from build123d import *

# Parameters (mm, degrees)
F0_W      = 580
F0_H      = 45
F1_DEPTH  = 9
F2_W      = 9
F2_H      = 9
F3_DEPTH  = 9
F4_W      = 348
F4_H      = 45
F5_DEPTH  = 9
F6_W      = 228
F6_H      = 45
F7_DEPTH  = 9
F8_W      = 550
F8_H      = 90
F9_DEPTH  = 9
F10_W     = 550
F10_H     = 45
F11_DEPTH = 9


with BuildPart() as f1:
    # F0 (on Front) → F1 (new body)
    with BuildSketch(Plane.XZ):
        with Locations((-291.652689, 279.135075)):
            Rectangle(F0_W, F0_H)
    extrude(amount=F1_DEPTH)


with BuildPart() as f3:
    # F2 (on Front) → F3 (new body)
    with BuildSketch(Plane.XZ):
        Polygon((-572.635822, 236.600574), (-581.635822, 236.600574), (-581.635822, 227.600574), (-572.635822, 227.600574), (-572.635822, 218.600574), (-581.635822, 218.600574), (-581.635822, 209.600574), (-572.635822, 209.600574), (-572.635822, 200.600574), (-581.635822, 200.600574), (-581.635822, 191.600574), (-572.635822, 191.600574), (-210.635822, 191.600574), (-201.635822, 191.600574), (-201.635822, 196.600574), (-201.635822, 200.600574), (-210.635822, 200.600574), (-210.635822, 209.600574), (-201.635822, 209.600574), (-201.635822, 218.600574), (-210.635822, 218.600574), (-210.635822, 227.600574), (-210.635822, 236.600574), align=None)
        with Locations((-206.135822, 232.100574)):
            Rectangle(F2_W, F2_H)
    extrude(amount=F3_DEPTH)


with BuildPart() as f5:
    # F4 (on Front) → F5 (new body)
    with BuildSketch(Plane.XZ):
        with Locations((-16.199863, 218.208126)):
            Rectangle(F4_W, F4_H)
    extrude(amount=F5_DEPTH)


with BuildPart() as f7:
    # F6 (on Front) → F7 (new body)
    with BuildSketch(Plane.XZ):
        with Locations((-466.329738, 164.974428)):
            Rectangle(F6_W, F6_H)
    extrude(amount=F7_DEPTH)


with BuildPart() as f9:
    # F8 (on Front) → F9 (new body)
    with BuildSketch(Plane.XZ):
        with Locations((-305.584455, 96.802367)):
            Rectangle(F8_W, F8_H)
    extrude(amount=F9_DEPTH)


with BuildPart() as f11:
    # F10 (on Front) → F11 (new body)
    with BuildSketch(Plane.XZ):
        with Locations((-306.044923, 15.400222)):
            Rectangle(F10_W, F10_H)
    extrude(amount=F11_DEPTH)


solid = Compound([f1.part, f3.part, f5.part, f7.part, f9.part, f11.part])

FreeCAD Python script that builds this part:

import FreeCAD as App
import Part
import Sketcher
from FreeCAD import Vector
Q = App.Units.Quantity

doc = App.newDocument("Part")
body = doc.addObject("PartDesign::Body", "Body")

# Sketch on XZ plane
sketch1 = doc.addObject("Sketcher::SketchObject", "Sketch")
body.addObject(sketch1)
sketch1.AttachmentSupport = (doc.XZ_Plane, [""])
sketch1.MapMode = "FlatFace"
sketch1.addGeometry([
    Part.LineSegment(Vector(-582, 302, 0), Vector(-582, 257, 0)),
    Part.LineSegment(Vector(-582, 257, 0), Vector(-2, 257, 0)),
    Part.LineSegment(Vector(-2, 257, 0), Vector(-2, 302, 0)),
    Part.LineSegment(Vector(-2, 302, 0), Vector(-582, 302, 0)),
], False)
sketch1.addConstraint([
    Sketcher.Constraint("Coincident", 0, 2, 1, 1),
    Sketcher.Constraint("Coincident", 1, 2, 2, 1),
    Sketcher.Constraint("Coincident", 2, 2, 3, 1),
    Sketcher.Constraint("Coincident", 3, 2, 0, 1),
    Sketcher.Constraint("Vertical", 0),
    Sketcher.Constraint("Horizontal", 1),
    Sketcher.Constraint("Vertical", 2),
    Sketcher.Constraint("Horizontal", 3),
    Sketcher.Constraint("DistanceX", 1, 1, 1, 2, Q("580 mm")),
    Sketcher.Constraint("DistanceY", 0, 2, 0, 1, Q("45 mm")),
    Sketcher.Constraint("DistanceX", 0, 2, -1, 1, Q("581.652689 mm")),
    Sketcher.Constraint("DistanceY", -1, 1, 0, 2, Q("256.635075 mm")),
])
pad1 = doc.addObject("PartDesign::Pad", "Pad")
body.addObject(pad1)
pad1.Profile = sketch1
pad1.Length = 9
body2 = doc.addObject("PartDesign::Body", "Body001")

# Sketch on XZ plane
sketch2 = doc.addObject("Sketcher::SketchObject", "Sketch001")
body2.addObject(sketch2)
sketch2.AttachmentSupport = (doc.getObject("XZ_Plane001"), [""])
sketch2.MapMode = "FlatFace"
sketch2.addGeometry([
    Part.LineSegment(Vector(-582, 237, 0), Vector(-582, 228, 0)),  # 0
    Part.LineSegment(Vector(-582, 228, 0), Vector(-573, 228, 0)),  # 1
    Part.LineSegment(Vector(-573, 228, 0), Vector(-573, 219, 0)),  # 2
    Part.LineSegment(Vector(-573, 219, 0), Vector(-582, 219, 0)),  # 3
    Part.LineSegment(Vector(-582, 219, 0), Vector(-582, 210, 0)),  # 4
    Part.LineSegment(Vector(-582, 210, 0), Vector(-573, 210, 0)),  # 5
    Part.LineSegment(Vector(-573, 210, 0), Vector(-573, 201, 0)),  # 6
    Part.LineSegment(Vector(-573, 201, 0), Vector(-582, 201, 0)),  # 7
    Part.LineSegment(Vector(-582, 201, 0), Vector(-582, 192, 0)),  # 8
    Part.LineSegment(Vector(-582, 192, 0), Vector(-202, 192, 0)),  # 9
    Part.LineSegment(Vector(-202, 192, 0), Vector(-202, 201, 0)),  # 10
    Part.LineSegment(Vector(-202, 201, 0), Vector(-211, 201, 0)),  # 11
    Part.LineSegment(Vector(-211, 201, 0), Vector(-211, 210, 0)),  # 12
    Part.LineSegment(Vector(-211, 210, 0), Vector(-202, 210, 0)),  # 13
    Part.LineSegment(Vector(-202, 210, 0), Vector(-202, 219, 0)),  # 14
    Part.LineSegment(Vector(-202, 219, 0), Vector(-211, 219, 0)),  # 15
    Part.LineSegment(Vector(-211, 219, 0), Vector(-211, 228, 0)),  # 16
    Part.LineSegment(Vector(-211, 228, 0), Vector(-202, 228, 0)),  # 17
    Part.LineSegment(Vector(-202, 228, 0), Vector(-202, 237, 0)),  # 18
    Part.LineSegment(Vector(-202, 237, 0), Vector(-582, 237, 0)),  # 19
], False)
sketch2.addConstraint([
    Sketcher.Constraint("Coincident", 0, 2, 1, 1),
    Sketcher.Constraint("Coincident", 1, 2, 2, 1),
    Sketcher.Constraint("Coincident", 2, 2, 3, 1),
    Sketcher.Constraint("Coincident", 3, 2, 4, 1),
    Sketcher.Constraint("Coincident", 4, 2, 5, 1),
    Sketcher.Constraint("Coincident", 5, 2, 6, 1),
    Sketcher.Constraint("Coincident", 6, 2, 7, 1),
    Sketcher.Constraint("Coincident", 7, 2, 8, 1),
    Sketcher.Constraint("Coincident", 8, 2, 9, 1),
    Sketcher.Constraint("Coincident", 9, 2, 10, 1),
    Sketcher.Constraint("Coincident", 10, 2, 11, 1),
    Sketcher.Constraint("Coincident", 11, 2, 12, 1),
    Sketcher.Constraint("Coincident", 12, 2, 13, 1),
    Sketcher.Constraint("Coincident", 13, 2, 14, 1),
    Sketcher.Constraint("Coincident", 14, 2, 15, 1),
    Sketcher.Constraint("Coincident", 15, 2, 16, 1),
    Sketcher.Constraint("Coincident", 16, 2, 17, 1),
    Sketcher.Constraint("Coincident", 17, 2, 18, 1),
    Sketcher.Constraint("Coincident", 18, 2, 19, 1),
    Sketcher.Constraint("Coincident", 19, 2, 0, 1),
    Sketcher.Constraint("Vertical", 0),
    Sketcher.Constraint("Horizontal", 1),
    Sketcher.Constraint("Vertical", 2),
    Sketcher.Constraint("Horizontal", 3),
    Sketcher.Constraint("Vertical", 4),
    Sketcher.Constraint("Horizontal", 5),
    Sketcher.Constraint("Vertical", 6),
    Sketcher.Constraint("Horizontal", 7),
    Sketcher.Constraint("Vertical", 8),
    Sketcher.Constraint("Horizontal", 9),
    Sketcher.Constraint("Vertical", 10),
    Sketcher.Constraint("Horizontal", 11),
    Sketcher.Constraint("Vertical", 12),
    Sketcher.Constraint("Horizontal", 13),
    Sketcher.Constraint("Vertical", 14),
    Sketcher.Constraint("Horizontal", 15),
    Sketcher.Constraint("Vertical", 16),
    Sketcher.Constraint("Horizontal", 17),
    Sketcher.Constraint("Vertical", 18),
    Sketcher.Constraint("Horizontal", 19),
    Sketcher.Constraint("Horizontal", 7, 2, 10, 2),
    Sketcher.Constraint("Horizontal", 5, 2, 12, 2),
    Sketcher.Constraint("Horizontal", 3, 2, 14, 2),
    Sketcher.Constraint("Horizontal", 1, 2, 16, 2),
    Sketcher.Constraint("Vertical", 0, 2, 3, 2),
    Sketcher.Constraint("Vertical", 2, 2, 5, 2),
    Sketcher.Constraint("Vertical", 4, 2, 7, 2),
    Sketcher.Constraint("Vertical", 10, 2, 13, 2),
    Sketcher.Constraint("Vertical", 12, 2, 15, 2),
    Sketcher.Constraint("Vertical", 14, 2, 17, 2),
    Sketcher.Constraint("Equal", 7, 11),
    Sketcher.Constraint("Equal", 17, 0),
    Sketcher.Constraint("Equal", 0, 2),
    Sketcher.Constraint("Equal", 2, 4),
    Sketcher.Constraint("Equal", 4, 6),
    Sketcher.Constraint("Equal", 6, 8),
    Sketcher.Constraint("DistanceX", 1, 1, 1, 2, Q("9 mm")),
    Sketcher.Constraint("DistanceX", 9, 1, 9, 2, Q("380 mm")),
    Sketcher.Constraint("DistanceX", 0, 2, -1, 1, Q("581.635822 mm")),
    Sketcher.Constraint("DistanceY", -1, 1, 0, 2, Q("227.600574 mm")),
])
pad2 = doc.addObject("PartDesign::Pad", "Pad001")
body2.addObject(pad2)
pad2.Profile = sketch2
pad2.Length = 9
body3 = doc.addObject("PartDesign::Body", "Body002")

# Sketch on XZ plane
sketch3 = doc.addObject("Sketcher::SketchObject", "Sketch002")
body3.addObject(sketch3)
sketch3.AttachmentSupport = (doc.getObject("XZ_Plane002"), [""])
sketch3.MapMode = "FlatFace"
sketch3.addGeometry([
    Part.LineSegment(Vector(-190, 241, 0), Vector(-190, 196, 0)),
    Part.LineSegment(Vector(-190, 196, 0), Vector(158, 196, 0)),
    Part.LineSegment(Vector(158, 196, 0), Vector(158, 241, 0)),
    Part.LineSegment(Vector(158, 241, 0), Vector(-190, 241, 0)),
], False)
sketch3.addConstraint([
    Sketcher.Constraint("Coincident", 0, 2, 1, 1),
    Sketcher.Constraint("Coincident", 1, 2, 2, 1),
    Sketcher.Constraint("Coincident", 2, 2, 3, 1),
    Sketcher.Constraint("Coincident", 3, 2, 0, 1),
    Sketcher.Constraint("Vertical", 0),
    Sketcher.Constraint("Horizontal", 1),
    Sketcher.Constraint("Vertical", 2),
    Sketcher.Constraint("Horizontal", 3),
    Sketcher.Constraint("DistanceX", 1, 1, 1, 2, Q("348 mm")),
    Sketcher.Constraint("DistanceY", 0, 2, 0, 1, Q("45 mm")),
    Sketcher.Constraint("DistanceX", 0, 2, -1, 1, Q("190.199863 mm")),
    Sketcher.Constraint("DistanceY", -1, 1, 0, 2, Q("195.708126 mm")),
])
pad3 = doc.addObject("PartDesign::Pad", "Pad002")
body3.addObject(pad3)
pad3.Profile = sketch3
pad3.Length = 9
body4 = doc.addObject("PartDesign::Body", "Body003")

# Sketch on XZ plane
sketch4 = doc.addObject("Sketcher::SketchObject", "Sketch003")
body4.addObject(sketch4)
sketch4.AttachmentSupport = (doc.getObject("XZ_Plane003"), [""])
sketch4.MapMode = "FlatFace"
sketch4.addGeometry([
    Part.LineSegment(Vector(-580, 187, 0), Vector(-580, 142, 0)),
    Part.LineSegment(Vector(-580, 142, 0), Vector(-352, 142, 0)),
    Part.LineSegment(Vector(-352, 142, 0), Vector(-352, 187, 0)),
    Part.LineSegment(Vector(-352, 187, 0), Vector(-580, 187, 0)),
], False)
sketch4.addConstraint([
    Sketcher.Constraint("Coincident", 0, 2, 1, 1),
    Sketcher.Constraint("Coincident", 1, 2, 2, 1),
    Sketcher.Constraint("Coincident", 2, 2, 3, 1),
    Sketcher.Constraint("Coincident", 3, 2, 0, 1),
    Sketcher.Constraint("Vertical", 0),
    Sketcher.Constraint("Horizontal", 1),
    Sketcher.Constraint("Vertical", 2),
    Sketcher.Constraint("Horizontal", 3),
    Sketcher.Constraint("DistanceX", 1, 1, 1, 2, Q("228 mm")),
    Sketcher.Constraint("DistanceY", 0, 2, 0, 1, Q("45 mm")),
    Sketcher.Constraint("DistanceX", 0, 2, -1, 1, Q("580.329738 mm")),
    Sketcher.Constraint("DistanceY", -1, 1, 0, 2, Q("142.474428 mm")),
])
pad4 = doc.addObject("PartDesign::Pad", "Pad003")
body4.addObject(pad4)
pad4.Profile = sketch4
pad4.Length = 9
body5 = doc.addObject("PartDesign::Body", "Body004")

# Sketch on XZ plane
sketch5 = doc.addObject("Sketcher::SketchObject", "Sketch004")
body5.addObject(sketch5)
sketch5.AttachmentSupport = (doc.getObject("XZ_Plane004"), [""])
sketch5.MapMode = "FlatFace"
sketch5.addGeometry([
    Part.LineSegment(Vector(-581, 142, 0), Vector(-581, 52, 0)),
    Part.LineSegment(Vector(-581, 52, 0), Vector(-31, 52, 0)),
    Part.LineSegment(Vector(-31, 52, 0), Vector(-31, 142, 0)),
    Part.LineSegment(Vector(-31, 142, 0), Vector(-581, 142, 0)),
], False)
sketch5.addConstraint([
    Sketcher.Constraint("Coincident", 0, 2, 1, 1),
    Sketcher.Constraint("Coincident", 1, 2, 2, 1),
    Sketcher.Constraint("Coincident", 2, 2, 3, 1),
    Sketcher.Constraint("Coincident", 3, 2, 0, 1),
    Sketcher.Constraint("Vertical", 0),
    Sketcher.Constraint("Horizontal", 1),
    Sketcher.Constraint("Vertical", 2),
    Sketcher.Constraint("Horizontal", 3),
    Sketcher.Constraint("DistanceX", 1, 1, 1, 2, Q("550 mm")),
    Sketcher.Constraint("DistanceY", 0, 2, 0, 1, Q("90 mm")),
    Sketcher.Constraint("DistanceX", 0, 2, -1, 1, Q("580.584455 mm")),
    Sketcher.Constraint("DistanceY", -1, 1, 0, 2, Q("51.802367 mm")),
])
pad5 = doc.addObject("PartDesign::Pad", "Pad004")
body5.addObject(pad5)
pad5.Profile = sketch5
pad5.Length = 9
body6 = doc.addObject("PartDesign::Body", "Body005")

# Sketch on XZ plane
sketch6 = doc.addObject("Sketcher::SketchObject", "Sketch005")
body6.addObject(sketch6)
sketch6.AttachmentSupport = (doc.getObject("XZ_Plane005"), [""])
sketch6.MapMode = "FlatFace"
sketch6.addGeometry([
    Part.LineSegment(Vector(-581, 38, 0), Vector(-581, -7, 0)),
    Part.LineSegment(Vector(-581, -7, 0), Vector(-31, -7, 0)),
    Part.LineSegment(Vector(-31, -7, 0), Vector(-31, 38, 0)),
    Part.LineSegment(Vector(-31, 38, 0), Vector(-581, 38, 0)),
], False)
sketch6.addConstraint([
    Sketcher.Constraint("Coincident", 0, 2, 1, 1),
    Sketcher.Constraint("Coincident", 1, 2, 2, 1),
    Sketcher.Constraint("Coincident", 2, 2, 3, 1),
    Sketcher.Constraint("Coincident", 3, 2, 0, 1),
    Sketcher.Constraint("Vertical", 0),
    Sketcher.Constraint("Horizontal", 1),
    Sketcher.Constraint("Vertical", 2),
    Sketcher.Constraint("Horizontal", 3),
    Sketcher.Constraint("DistanceX", 1, 1, 1, 2, Q("550 mm")),
    Sketcher.Constraint("DistanceY", 0, 2, 0, 1, Q("45 mm")),
    Sketcher.Constraint("DistanceX", 0, 2, -1, 1, Q("581.044923 mm")),
    Sketcher.Constraint("DistanceY", 0, 2, -1, 1, Q("7.099778 mm")),
])
pad6 = doc.addObject("PartDesign::Pad", "Pad005")
body6.addObject(pad6)
pad6.Profile = sketch6
pad6.Length = 9

doc.recompute()
